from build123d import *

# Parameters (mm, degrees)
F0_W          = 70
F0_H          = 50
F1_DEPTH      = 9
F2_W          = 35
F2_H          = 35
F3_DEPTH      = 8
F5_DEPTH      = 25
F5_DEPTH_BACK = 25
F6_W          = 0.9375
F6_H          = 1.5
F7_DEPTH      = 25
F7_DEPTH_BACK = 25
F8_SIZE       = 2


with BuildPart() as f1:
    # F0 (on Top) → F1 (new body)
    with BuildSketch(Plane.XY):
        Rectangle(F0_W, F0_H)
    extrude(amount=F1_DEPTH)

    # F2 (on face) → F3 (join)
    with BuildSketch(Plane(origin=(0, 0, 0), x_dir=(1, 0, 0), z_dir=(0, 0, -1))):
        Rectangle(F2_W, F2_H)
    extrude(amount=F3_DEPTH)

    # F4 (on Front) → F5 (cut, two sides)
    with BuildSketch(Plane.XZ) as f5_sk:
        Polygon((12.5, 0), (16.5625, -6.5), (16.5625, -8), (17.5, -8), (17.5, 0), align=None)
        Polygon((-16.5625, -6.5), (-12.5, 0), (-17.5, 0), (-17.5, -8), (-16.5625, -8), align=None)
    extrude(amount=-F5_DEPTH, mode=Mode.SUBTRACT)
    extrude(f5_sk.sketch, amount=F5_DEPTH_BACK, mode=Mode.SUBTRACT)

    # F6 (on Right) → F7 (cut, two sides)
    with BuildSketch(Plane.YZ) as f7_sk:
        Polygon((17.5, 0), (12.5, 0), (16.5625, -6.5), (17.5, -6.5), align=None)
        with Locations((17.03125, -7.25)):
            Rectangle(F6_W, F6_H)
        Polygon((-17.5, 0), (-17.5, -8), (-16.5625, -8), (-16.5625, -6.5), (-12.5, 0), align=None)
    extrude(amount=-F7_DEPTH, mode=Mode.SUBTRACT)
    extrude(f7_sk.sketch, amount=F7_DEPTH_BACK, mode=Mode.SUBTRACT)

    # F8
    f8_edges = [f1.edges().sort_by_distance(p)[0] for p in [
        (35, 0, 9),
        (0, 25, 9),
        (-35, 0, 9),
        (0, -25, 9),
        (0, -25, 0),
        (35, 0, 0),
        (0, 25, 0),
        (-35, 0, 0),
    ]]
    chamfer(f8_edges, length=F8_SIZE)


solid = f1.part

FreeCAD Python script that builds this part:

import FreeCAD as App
import Part
import Sketcher
Q = App.Units.Quantity


def edges_at(feature, points):
    """Names of the edges that pass closest to the given points."""
    edges = feature.Shape.Edges
    near = lambda p: min(range(len(edges)), key=lambda i: edges[i].distToShape(Part.Vertex(*p))[0])
    return sorted({f"Edge{near(p) + 1}" for p in points})

doc = App.newDocument("Part")
body = doc.addObject("PartDesign::Body", "Body")

# Sketch on XY plane
sketch1 = body.newObject("Sketcher::SketchObject", "Sketch")
sketch1.AttachmentSupport = (doc.getObject("XY_Plane"), [""])
sketch1.MapMode = "FlatFace"
sketch1.addGeometry([
    Part.LineSegment(App.Vector(-35, 25, 0), App.Vector(-35, -25, 0)),
    Part.LineSegment(App.Vector(-35, -25, 0), App.Vector(35, -25, 0)),
    Part.LineSegment(App.Vector(35, -25, 0), App.Vector(35, 25, 0)),
    Part.LineSegment(App.Vector(35, 25, 0), App.Vector(-35, 25, 0)),
], False)
sketch1.addConstraint([
    Sketcher.Constraint("Coincident", 0, 2, 1, 1),
    Sketcher.Constraint("Coincident", 1, 2, 2, 1),
    Sketcher.Constraint("Coincident", 2, 2, 3, 1),
    Sketcher.Constraint("Coincident", 3, 2, 0, 1),
    Sketcher.Constraint("Vertical", 0),
    Sketcher.Constraint("Horizontal", 1),
    Sketcher.Constraint("Vertical", 2),
    Sketcher.Constraint("Horizontal", 3),
    Sketcher.Constraint("Symmetric", 0, 2, 2, 2, -1, 1),
    Sketcher.Constraint("DistanceX", 1, 1, 1, 2, Q("70 mm")),
    Sketcher.Constraint("DistanceY", 0, 2, 0, 1, Q("50 mm")),
])
pad1 = body.newObject("PartDesign::Pad", "Pad")
pad1.Profile = sketch1
pad1.Length = 9

# Sketch on XY plane
sketch2 = body.newObject("Sketcher::SketchObject", "Sketch001")
sketch2.AttachmentSupport = (doc.getObject("XY_Plane"), [""])
sketch2.MapMode = "FlatFace"
sketch2.addGeometry([
    Part.LineSegment(App.Vector(-18, -18, 0), App.Vector(-18, 18, 0)),
    Part.LineSegment(App.Vector(-18, 18, 0), App.Vector(18, 18, 0)),
    Part.LineSegment(App.Vector(18, 18, 0), App.Vector(18, -18, 0)),
    Part.LineSegment(App.Vector(18, -18, 0), App.Vector(-18, -18, 0)),
], False)
sketch2.addConstraint([
    Sketcher.Constraint("Coincident", 0, 2, 1, 1),
    Sketcher.Constraint("Coincident", 1, 2, 2, 1),
    Sketcher.Constraint("Coincident", 2, 2, 3, 1),
    Sketcher.Constraint("Coincident", 3, 2, 0, 1),
    Sketcher.Constraint("Vertical", 0),
    Sketcher.Constraint("Horizontal", 1),
    Sketcher.Constraint("Vertical", 2),
    Sketcher.Constraint("Horizontal", 3),
    Sketcher.Constraint("Symmetric", 0, 2, 2, 2, -1, 1),
    Sketcher.Constraint("Equal", 3, 0),
    Sketcher.Constraint("DistanceX", 1, 1, 1, 2, Q("35 mm")),
])
pad2 = body.newObject("PartDesign::Pad", "Pad001")
pad2.Profile = sketch2
pad2.Length = 8
pad2.Reversed = True

# Sketch on XZ plane
sketch3 = body.newObject("Sketcher::SketchObject", "Sketch002")
sketch3.AttachmentSupport = (doc.getObject("XZ_Plane"), [""])
sketch3.MapMode = "FlatFace"
sketch3.addGeometry([
    Part.LineSegment(App.Vector(12.5, 0, 0), App.Vector(16.6, -6.5, 0)),  # 0
    Part.LineSegment(App.Vector(16.6, -6.5, 0), App.Vector(16.6, -8, 0)),  # 1
    Part.LineSegment(App.Vector(16.6, -8, 0), App.Vector(17.5, -8, 0)),  # 2
    Part.LineSegment(App.Vector(17.5, -8, 0), App.Vector(17.5, 0, 0)),  # 3
    Part.LineSegment(App.Vector(17.5, 0, 0), App.Vector(12.5, 0, 0)),  # 4
    Part.LineSegment(App.Vector(-16.6, -6.5, 0), App.Vector(-12.5, 0, 0)),  # 5
    Part.LineSegment(App.Vector(-12.5, 0, 0), App.Vector(-17.5, 0, 0)),  # 6
    Part.LineSegment(App.Vector(-17.5, 0, 0), App.Vector(-17.5, -8, 0)),  # 7
    Part.LineSegment(App.Vector(-17.5, -8, 0), App.Vector(-16.6, -8, 0)),  # 8
    Part.LineSegment(App.Vector(-16.6, -8, 0), App.Vector(-16.6, -6.5, 0)),  # 9
], False)
sketch3.addConstraint([
    Sketcher.Constraint("Coincident", 0, 2, 1, 1),
    Sketcher.Constraint("Coincident", 1, 2, 2, 1),
    Sketcher.Constraint("Coincident", 2, 2, 3, 1),
    Sketcher.Constraint("Coincident", 3, 2, 4, 1),
    Sketcher.Constraint("Coincident", 4, 2, 0, 1),
    Sketcher.Constraint("Coincident", 5, 2, 6, 1),
    Sketcher.Constraint("Coincident", 6, 2, 7, 1),
    Sketcher.Constraint("Coincident", 7, 2, 8, 1),
    Sketcher.Constraint("Coincident", 8, 2, 9, 1),
    Sketcher.Constraint("Coincident", 9, 2, 5, 1),
    Sketcher.Constraint("Vertical", 1),
    Sketcher.Constraint("Horizontal", 2),
    Sketcher.Constraint("Vertical", 3),
    Sketcher.Constraint("Horizontal", 4),
    Sketcher.Constraint("Horizontal", 6),
    Sketcher.Constraint("Vertical", 7),
    Sketcher.Constraint("Horizontal", 8),
    Sketcher.Constraint("Vertical", 9),
    Sketcher.Constraint("Symmetric", 4, 2, 5, 2, -1, 1),
    Sketcher.Constraint("Symmetric", 3, 2, 6, 2, -2),
    Sketcher.Constraint("Symmetric", 1, 2, 8, 2, -2),
    Sketcher.Constraint("Horizontal", 0, 2, 9, 2),
    Sketcher.Constraint("DistanceX", 4, 2, 4, 1, Q("5 mm")),
    Sketcher.Constraint("DistanceY", 3, 1, 3, 2, Q("8 mm")),
    Sketcher.Constraint("DistanceY", 1, 2, 1, 1, Q("1.5 mm")),
    Sketcher.Constraint("DistanceX", 5, 2, 4, 2, Q("25 mm")),
    Sketcher.Constraint("DistanceX", 2, 1, 2, 2, Q("0.9375 mm")),
])
pocket1 = body.newObject("PartDesign::Pocket", "Pocket")
pocket1.Profile = sketch3
pocket1.Type = "ThroughAll"
pocket1.Midplane = True

# Sketch on YZ plane
sketch4 = body.newObject("Sketcher::SketchObject", "Sketch003")
sketch4.AttachmentSupport = (doc.getObject("YZ_Plane"), [""])
sketch4.MapMode = "FlatFace"
sketch4.addGeometry([
    Part.LineSegment(App.Vector(17.5, 0, 0), App.Vector(12.5, 0, 0)),  # 0
    Part.LineSegment(App.Vector(12.5, 0, 0), App.Vector(16.6, -6.5, 0)),  # 1
    Part.LineSegment(App.Vector(16.6, -6.5, 0), App.Vector(16.6, -8, 0)),  # 2
    Part.LineSegment(App.Vector(16.6, -8, 0), App.Vector(17.5, -8, 0)),  # 3
    Part.LineSegment(App.Vector(17.5, -8, 0), App.Vector(17.5, 0, 0)),  # 4
    Part.LineSegment(App.Vector(-17.5, 0, 0), App.Vector(-17.5, -8, 0)),  # 5
    Part.LineSegment(App.Vector(-17.5, -8, 0), App.Vector(-16.6, -8, 0)),  # 6
    Part.LineSegment(App.Vector(-16.6, -8, 0), App.Vector(-16.6, -6.5, 0)),  # 7
    Part.LineSegment(App.Vector(-16.6, -6.5, 0), App.Vector(-12.5, 0, 0)),  # 8
    Part.LineSegment(App.Vector(-12.5, 0, 0), App.Vector(-17.5, 0, 0)),  # 9
], False)
sketch4.addConstraint([
    Sketcher.Constraint("Coincident", 0, 2, 1, 1),
    Sketcher.Constraint("Coincident", 1, 2, 2, 1),
    Sketcher.Constraint("Coincident", 2, 2, 3, 1),
    Sketcher.Constraint("Coincident", 3, 2, 4, 1),
    Sketcher.Constraint("Coincident", 4, 2, 0, 1),
    Sketcher.Constraint("Coincident", 5, 2, 6, 1),
    Sketcher.Constraint("Coincident", 6, 2, 7, 1),
    Sketcher.Constraint("Coincident", 7, 2, 8, 1),
    Sketcher.Constraint("Coincident", 8, 2, 9, 1),
    Sketcher.Constraint("Coincident", 9, 2, 5, 1),
    Sketcher.Constraint("Horizontal", 0),
    Sketcher.Constraint("Vertical", 2),
    Sketcher.Constraint("Horizontal", 3),
    Sketcher.Constraint("Vertical", 4),
    Sketcher.Constraint("Vertical", 5),
    Sketcher.Constraint("Horizontal", 6),
    Sketcher.Constraint("Vertical", 7),
    Sketcher.Constraint("Horizontal", 9),
    Sketcher.Constraint("Symmetric", 0, 2, 8, 2, -1, 1),
    Sketcher.Constraint("Symmetric", 3, 2, 5, 2, -2),
    Sketcher.Constraint("Symmetric", 1, 2, 7, 2, -2),
    Sketcher.Constraint("PointOnObject", 0, 2, -1),
    Sketcher.Constraint("DistanceX", 0, 2, 0, 1, Q("5 mm")),
    Sketcher.Constraint("DistanceY", 4, 1, 4, 2, Q("8 mm")),
    Sketcher.Constraint("DistanceY", 2, 2, 2, 1, Q("1.5 mm")),
    Sketcher.Constraint("DistanceX", 5, 2, 0, 2, Q("30 mm")),
    Sketcher.Constraint("DistanceX", 3, 1, 3, 2, Q("0.9375 mm")),
])
pocket2 = body.newObject("PartDesign::Pocket", "Pocket001")
pocket2.Profile = sketch4
pocket2.Type = "ThroughAll"
pocket2.Midplane = True
doc.recompute()

chamfer = body.newObject("PartDesign::Chamfer", "Chamfer")
chamfer.Base = (pocket2, edges_at(pocket2, [
    (35, 0, 9),
    (0, 25, 9),
    (-35, 0, 9),
    (0, -25, 9),
    (0, -25, 0),
    (35, 0, 0),
    (0, 25, 0),
    (-35, 0, 0),
]))
chamfer.Size = 2

doc.recompute()
